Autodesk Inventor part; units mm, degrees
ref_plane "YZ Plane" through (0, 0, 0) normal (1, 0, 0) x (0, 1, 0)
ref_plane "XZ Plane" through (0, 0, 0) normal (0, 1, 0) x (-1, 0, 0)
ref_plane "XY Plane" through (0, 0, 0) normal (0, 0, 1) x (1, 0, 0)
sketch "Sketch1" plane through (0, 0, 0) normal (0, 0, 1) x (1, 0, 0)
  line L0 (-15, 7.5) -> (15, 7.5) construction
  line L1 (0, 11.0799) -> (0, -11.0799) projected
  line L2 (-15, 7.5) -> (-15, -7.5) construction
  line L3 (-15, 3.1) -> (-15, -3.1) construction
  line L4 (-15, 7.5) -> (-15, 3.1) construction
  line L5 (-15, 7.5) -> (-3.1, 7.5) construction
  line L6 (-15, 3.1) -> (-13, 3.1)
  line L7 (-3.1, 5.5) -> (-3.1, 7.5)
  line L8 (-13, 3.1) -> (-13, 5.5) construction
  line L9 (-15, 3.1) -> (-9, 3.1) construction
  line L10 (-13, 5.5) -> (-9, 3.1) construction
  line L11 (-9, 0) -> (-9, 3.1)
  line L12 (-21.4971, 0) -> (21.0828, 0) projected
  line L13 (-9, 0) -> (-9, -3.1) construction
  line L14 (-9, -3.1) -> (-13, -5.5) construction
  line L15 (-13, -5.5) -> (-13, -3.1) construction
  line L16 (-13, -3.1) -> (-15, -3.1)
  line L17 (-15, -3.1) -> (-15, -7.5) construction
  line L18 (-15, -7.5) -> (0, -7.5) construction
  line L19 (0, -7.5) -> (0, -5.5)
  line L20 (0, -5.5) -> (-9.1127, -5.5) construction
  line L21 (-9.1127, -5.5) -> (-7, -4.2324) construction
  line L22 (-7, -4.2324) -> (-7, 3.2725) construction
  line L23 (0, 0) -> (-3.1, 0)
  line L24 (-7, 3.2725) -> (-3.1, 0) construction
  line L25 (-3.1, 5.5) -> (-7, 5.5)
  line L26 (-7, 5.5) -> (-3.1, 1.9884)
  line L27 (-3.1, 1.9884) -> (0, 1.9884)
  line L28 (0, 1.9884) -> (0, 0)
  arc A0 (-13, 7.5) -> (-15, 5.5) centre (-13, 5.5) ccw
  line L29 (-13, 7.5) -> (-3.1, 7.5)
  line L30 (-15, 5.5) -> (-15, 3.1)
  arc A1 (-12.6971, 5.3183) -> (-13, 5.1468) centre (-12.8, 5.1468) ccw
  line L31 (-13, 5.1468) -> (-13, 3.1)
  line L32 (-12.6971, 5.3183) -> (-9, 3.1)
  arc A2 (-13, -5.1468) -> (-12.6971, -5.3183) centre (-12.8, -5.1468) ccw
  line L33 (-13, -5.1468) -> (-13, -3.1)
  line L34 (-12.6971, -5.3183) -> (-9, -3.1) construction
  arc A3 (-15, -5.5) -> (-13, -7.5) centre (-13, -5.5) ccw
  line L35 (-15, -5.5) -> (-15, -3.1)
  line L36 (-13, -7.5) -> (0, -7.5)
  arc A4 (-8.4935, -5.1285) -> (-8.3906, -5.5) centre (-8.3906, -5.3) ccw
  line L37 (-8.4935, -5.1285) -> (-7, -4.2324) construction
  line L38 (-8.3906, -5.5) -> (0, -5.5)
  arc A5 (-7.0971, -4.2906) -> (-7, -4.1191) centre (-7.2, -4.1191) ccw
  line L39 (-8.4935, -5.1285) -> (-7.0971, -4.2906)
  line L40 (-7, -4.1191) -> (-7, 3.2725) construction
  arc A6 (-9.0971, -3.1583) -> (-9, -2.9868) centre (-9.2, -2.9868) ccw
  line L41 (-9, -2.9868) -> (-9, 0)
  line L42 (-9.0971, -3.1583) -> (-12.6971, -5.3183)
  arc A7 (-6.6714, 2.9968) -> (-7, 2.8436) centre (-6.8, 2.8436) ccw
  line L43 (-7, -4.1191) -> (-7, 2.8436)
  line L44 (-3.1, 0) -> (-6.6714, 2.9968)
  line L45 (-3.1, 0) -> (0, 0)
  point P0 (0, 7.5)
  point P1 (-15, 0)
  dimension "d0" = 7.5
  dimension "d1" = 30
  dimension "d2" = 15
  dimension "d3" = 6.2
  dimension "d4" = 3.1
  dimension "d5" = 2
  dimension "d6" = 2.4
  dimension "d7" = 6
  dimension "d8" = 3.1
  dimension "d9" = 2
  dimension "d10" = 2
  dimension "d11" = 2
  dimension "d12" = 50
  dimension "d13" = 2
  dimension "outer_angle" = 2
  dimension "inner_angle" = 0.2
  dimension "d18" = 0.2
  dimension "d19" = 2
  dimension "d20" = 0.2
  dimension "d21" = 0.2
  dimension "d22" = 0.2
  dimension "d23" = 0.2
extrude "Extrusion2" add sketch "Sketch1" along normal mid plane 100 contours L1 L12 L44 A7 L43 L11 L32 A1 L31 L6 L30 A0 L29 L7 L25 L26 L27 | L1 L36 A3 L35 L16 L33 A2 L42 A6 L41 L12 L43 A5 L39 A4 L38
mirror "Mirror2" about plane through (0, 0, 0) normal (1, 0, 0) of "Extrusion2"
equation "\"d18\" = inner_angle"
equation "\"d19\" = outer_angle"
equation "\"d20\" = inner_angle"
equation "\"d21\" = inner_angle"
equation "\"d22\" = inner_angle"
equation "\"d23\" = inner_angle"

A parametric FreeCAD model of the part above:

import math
import FreeCAD as App
import Part
import Sketcher

V = App.Vector
Q = App.Units.Quantity

doc = App.newDocument("Part")
body = doc.addObject("PartDesign::Body", "Body")

sketch1 = doc.addObject("Sketcher::SketchObject", "Sketch")
body.addObject(sketch1)
sketch1.AttachmentSupport = (doc.XY_Plane, [""])
sketch1.MapMode = "FlatFace"
sketch1.addGeometry([
    Part.LineSegment(V(0, 0, 0), V(0, 1.99, 0)),
    Part.LineSegment(V(0, 1.99, 0), V(-3.1, 1.99, 0)),
    Part.LineSegment(V(-3.1, 1.99, 0), V(-7, 5.5, 0)),
    Part.LineSegment(V(-7, 5.5, 0), V(-3.1, 5.5, 0)),
    Part.LineSegment(V(-3.1, 5.5, 0), V(-3.1, 7.5, 0)),
    Part.LineSegment(V(-3.1, 7.5, 0), V(-13, 7.5, 0)),
    Part.ArcOfCircle(Part.Circle(V(-13, 5.5, 0), V(0, 0, 1), 2), math.radians(90), math.radians(180)),
    Part.LineSegment(V(-15, 5.5, 0), V(-15, 3.1, 0)),
    Part.LineSegment(V(-15, 3.1, 0), V(-13, 3.1, 0)),
    Part.LineSegment(V(-13, 3.1, 0), V(-13, 5.15, 0)),
    Part.ArcOfCircle(Part.Circle(V(-12.8, 5.15, 0), V(0, 0, 1), 0.2), math.radians(59), math.radians(180)),
    Part.LineSegment(V(-12.7, 5.32, 0), V(-9, 3.1, 0)),
    Part.LineSegment(V(-9, 3.1, 0), V(-9, -2.99, 0)),
    Part.ArcOfCircle(Part.Circle(V(-9.2, -2.99, 0), V(0, 0, 1), 0.2), math.radians(-59), math.radians(0)),
    Part.LineSegment(V(-9.1, -3.16, 0), V(-12.7, -5.32, 0)),
    Part.ArcOfCircle(Part.Circle(V(-12.8, -5.15, 0), V(0, 0, 1), 0.2), math.radians(180), math.radians(301)),
    Part.LineSegment(V(-13, -5.15, 0), V(-13, -3.1, 0)),
    Part.LineSegment(V(-13, -3.1, 0), V(-15, -3.1, 0)),
    Part.LineSegment(V(-15, -3.1, 0), V(-15, -5.5, 0)),
    Part.ArcOfCircle(Part.Circle(V(-13, -5.5, 0), V(0, 0, 1), 2), math.radians(180), math.radians(270)),
    Part.LineSegment(V(-13, -7.5, 0), V(0, -7.5, 0)),
    Part.LineSegment(V(0, -7.5, 0), V(0, -5.5, 0)),
    Part.LineSegment(V(0, -5.5, 0), V(-8.39, -5.5, 0)),
    Part.ArcOfCircle(Part.Circle(V(-8.39, -5.3, 0), V(0, 0, 1), 0.2), math.radians(121), math.radians(270)),
    Part.LineSegment(V(-8.49, -5.13, 0), V(-7.1, -4.29, 0)),
    Part.ArcOfCircle(Part.Circle(V(-7.2, -4.12, 0), V(0, 0, 1), 0.2), math.radians(-59), math.radians(0)),
    Part.LineSegment(V(-7, -4.12, 0), V(-7, 2.84, 0)),
    Part.ArcOfCircle(Part.Circle(V(-6.8, 2.84, 0), V(0, 0, 1), 0.2), math.radians(50), math.radians(180)),
    Part.LineSegment(V(-6.67, 3, 0), V(-3.1, 0, 0)),
    Part.LineSegment(V(-3.1, 0, 0), V(0, 0, 0)),
], False)
sketch1.addConstraint([
    Sketcher.Constraint("Coincident", 0, 2, 1, 1),
    Sketcher.Constraint("Coincident", 1, 2, 2, 1),
    Sketcher.Constraint("Coincident", 2, 2, 3, 1),
    Sketcher.Constraint("Coincident", 3, 2, 4, 1),
    Sketcher.Constraint("Coincident", 4, 2, 5, 1),
    Sketcher.Constraint("Tangent", 5, 2, 6, 1),
    Sketcher.Constraint("Tangent", 6, 2, 7, 1),
    Sketcher.Constraint("Coincident", 7, 2, 8, 1),
    Sketcher.Constraint("Coincident", 8, 2, 9, 1),
    Sketcher.Constraint("Tangent", 9, 2, 10, 2),
    Sketcher.Constraint("Tangent", 10, 1, 11, 1),
    Sketcher.Constraint("Coincident", 11, 2, 12, 1),
    Sketcher.Constraint("Tangent", 12, 2, 13, 2),
    Sketcher.Constraint("Tangent", 13, 1, 14, 1),
    Sketcher.Constraint("Tangent", 14, 2, 15, 2),
    Sketcher.Constraint("Tangent", 15, 1, 16, 1),
    Sketcher.Constraint("Coincident", 16, 2, 17, 1),
    Sketcher.Constraint("Coincident", 17, 2, 18, 1),
    Sketcher.Constraint("Tangent", 18, 2, 19, 1),
    Sketcher.Constraint("Tangent", 19, 2, 20, 1),
    Sketcher.Constraint("Coincident", 20, 2, 21, 1),
    Sketcher.Constraint("Coincident", 21, 2, 22, 1),
    Sketcher.Constraint("Tangent", 22, 2, 23, 2),
    Sketcher.Constraint("Tangent", 23, 1, 24, 1),
    Sketcher.Constraint("Tangent", 24, 2, 25, 1),
    Sketcher.Constraint("Tangent", 25, 2, 26, 1),
    Sketcher.Constraint("Tangent", 26, 2, 27, 2),
    Sketcher.Constraint("Tangent", 27, 1, 28, 1),
    Sketcher.Constraint("Coincident", 28, 2, 29, 1),
    Sketcher.Constraint("Coincident", 29, 2, 0, 1),
    Sketcher.Constraint("Vertical", 0),
    Sketcher.Constraint("Horizontal", 1),
    Sketcher.Constraint("Horizontal", 3),
    Sketcher.Constraint("Vertical", 4),
    Sketcher.Constraint("Horizontal", 5),
    Sketcher.Constraint("Vertical", 7),
    Sketcher.Constraint("Horizontal", 8),
    Sketcher.Constraint("Vertical", 9),
    Sketcher.Constraint("Vertical", 12),
    Sketcher.Constraint("Vertical", 16),
    Sketcher.Constraint("Horizontal", 17),
    Sketcher.Constraint("Vertical", 18),
    Sketcher.Constraint("Horizontal", 20),
    Sketcher.Constraint("Vertical", 21),
    Sketcher.Constraint("Horizontal", 22),
    Sketcher.Constraint("Vertical", 26),
    Sketcher.Constraint("Horizontal", 29),
    Sketcher.Constraint("Coincident", 29, 2, -1, 1),
    Sketcher.Constraint("Equal", 10, 13),
    Sketcher.Constraint("Equal", 13, 15),
    Sketcher.Constraint("Equal", 6, 19),
    Sketcher.Constraint("Equal", 15, 23),
    Sketcher.Constraint("Equal", 23, 25),
    Sketcher.Constraint("Equal", 25, 27),
    Sketcher.Constraint("Symmetric", 10, 3, 15, 3, -1),
    Sketcher.Constraint("Symmetric", 6, 3, 19, 3, -1),
    Sketcher.Constraint("PointOnObject", 20, 2, -2),
    Sketcher.Constraint("Parallel", 14, 24),
    Sketcher.Constraint("Horizontal", 6, 3, 2, 2),
    Sketcher.Constraint("Horizontal", 8, 2, 11, 2),
    Sketcher.Constraint("Horizontal", 18, 2, 21, 2),
    Sketcher.Constraint("Vertical", 1, 2, 3, 2),
    Sketcher.Constraint("Vertical", 5, 2, 8, 2),
    Sketcher.Constraint("Vertical", 10, 1, 14, 2),
    Sketcher.Constraint("Vertical", 2, 2, 25, 2),
    Sketcher.Constraint("Vertical", 4, 2, 28, 2),
    Sketcher.Constraint("Equal", 9, 16),
    Sketcher.Constraint("Radius", 6, Q("2 mm")),
    Sketcher.Constraint("Radius", 10, Q("0.2 mm")),
    Sketcher.Constraint("DistanceX", 1, 2, 1, 1, Q("3.1 mm")),
    Sketcher.Constraint("DistanceY", 7, 2, 7, 1, Q("2.4 mm")),
    Sketcher.Constraint("DistanceX", 6, 2, -1, 1, Q("15 mm")),
    Sketcher.Constraint("DistanceX", 13, 3, 25, 3, Q("2 mm")),
    Sketcher.Constraint("DistanceX", 10, 3, 27, 3, Q("6 mm")),
    Sketcher.Constraint("DistanceY", -1, 1, 4, 2, Q("7.5 mm")),
    Sketcher.Constraint("Angle", 2, Q("137.9998 deg")),
    Sketcher.Constraint("Angle", 28, Q("-40.0004 deg")),
    Sketcher.Constraint("DistanceY", 15, 3, 13, 3, Q("2.16 mm")),
    Sketcher.Constraint("DistanceX", 22, 2, 22, 1, Q("8.3906 mm")),
])
pad1 = doc.addObject("PartDesign::Pad", "Pad")
body.addObject(pad1)
pad1.Profile = sketch1
pad1.Length = 100
pad1.Midplane = True
doc.recompute()

mirrored = doc.addObject("PartDesign::Mirrored", "Mirrored")
body.addObject(mirrored)
mirrored.Originals = [pad1]
mirrored.MirrorPlane = (doc.YZ_Plane, [""])
body.Tip = mirrored

doc.recompute()
